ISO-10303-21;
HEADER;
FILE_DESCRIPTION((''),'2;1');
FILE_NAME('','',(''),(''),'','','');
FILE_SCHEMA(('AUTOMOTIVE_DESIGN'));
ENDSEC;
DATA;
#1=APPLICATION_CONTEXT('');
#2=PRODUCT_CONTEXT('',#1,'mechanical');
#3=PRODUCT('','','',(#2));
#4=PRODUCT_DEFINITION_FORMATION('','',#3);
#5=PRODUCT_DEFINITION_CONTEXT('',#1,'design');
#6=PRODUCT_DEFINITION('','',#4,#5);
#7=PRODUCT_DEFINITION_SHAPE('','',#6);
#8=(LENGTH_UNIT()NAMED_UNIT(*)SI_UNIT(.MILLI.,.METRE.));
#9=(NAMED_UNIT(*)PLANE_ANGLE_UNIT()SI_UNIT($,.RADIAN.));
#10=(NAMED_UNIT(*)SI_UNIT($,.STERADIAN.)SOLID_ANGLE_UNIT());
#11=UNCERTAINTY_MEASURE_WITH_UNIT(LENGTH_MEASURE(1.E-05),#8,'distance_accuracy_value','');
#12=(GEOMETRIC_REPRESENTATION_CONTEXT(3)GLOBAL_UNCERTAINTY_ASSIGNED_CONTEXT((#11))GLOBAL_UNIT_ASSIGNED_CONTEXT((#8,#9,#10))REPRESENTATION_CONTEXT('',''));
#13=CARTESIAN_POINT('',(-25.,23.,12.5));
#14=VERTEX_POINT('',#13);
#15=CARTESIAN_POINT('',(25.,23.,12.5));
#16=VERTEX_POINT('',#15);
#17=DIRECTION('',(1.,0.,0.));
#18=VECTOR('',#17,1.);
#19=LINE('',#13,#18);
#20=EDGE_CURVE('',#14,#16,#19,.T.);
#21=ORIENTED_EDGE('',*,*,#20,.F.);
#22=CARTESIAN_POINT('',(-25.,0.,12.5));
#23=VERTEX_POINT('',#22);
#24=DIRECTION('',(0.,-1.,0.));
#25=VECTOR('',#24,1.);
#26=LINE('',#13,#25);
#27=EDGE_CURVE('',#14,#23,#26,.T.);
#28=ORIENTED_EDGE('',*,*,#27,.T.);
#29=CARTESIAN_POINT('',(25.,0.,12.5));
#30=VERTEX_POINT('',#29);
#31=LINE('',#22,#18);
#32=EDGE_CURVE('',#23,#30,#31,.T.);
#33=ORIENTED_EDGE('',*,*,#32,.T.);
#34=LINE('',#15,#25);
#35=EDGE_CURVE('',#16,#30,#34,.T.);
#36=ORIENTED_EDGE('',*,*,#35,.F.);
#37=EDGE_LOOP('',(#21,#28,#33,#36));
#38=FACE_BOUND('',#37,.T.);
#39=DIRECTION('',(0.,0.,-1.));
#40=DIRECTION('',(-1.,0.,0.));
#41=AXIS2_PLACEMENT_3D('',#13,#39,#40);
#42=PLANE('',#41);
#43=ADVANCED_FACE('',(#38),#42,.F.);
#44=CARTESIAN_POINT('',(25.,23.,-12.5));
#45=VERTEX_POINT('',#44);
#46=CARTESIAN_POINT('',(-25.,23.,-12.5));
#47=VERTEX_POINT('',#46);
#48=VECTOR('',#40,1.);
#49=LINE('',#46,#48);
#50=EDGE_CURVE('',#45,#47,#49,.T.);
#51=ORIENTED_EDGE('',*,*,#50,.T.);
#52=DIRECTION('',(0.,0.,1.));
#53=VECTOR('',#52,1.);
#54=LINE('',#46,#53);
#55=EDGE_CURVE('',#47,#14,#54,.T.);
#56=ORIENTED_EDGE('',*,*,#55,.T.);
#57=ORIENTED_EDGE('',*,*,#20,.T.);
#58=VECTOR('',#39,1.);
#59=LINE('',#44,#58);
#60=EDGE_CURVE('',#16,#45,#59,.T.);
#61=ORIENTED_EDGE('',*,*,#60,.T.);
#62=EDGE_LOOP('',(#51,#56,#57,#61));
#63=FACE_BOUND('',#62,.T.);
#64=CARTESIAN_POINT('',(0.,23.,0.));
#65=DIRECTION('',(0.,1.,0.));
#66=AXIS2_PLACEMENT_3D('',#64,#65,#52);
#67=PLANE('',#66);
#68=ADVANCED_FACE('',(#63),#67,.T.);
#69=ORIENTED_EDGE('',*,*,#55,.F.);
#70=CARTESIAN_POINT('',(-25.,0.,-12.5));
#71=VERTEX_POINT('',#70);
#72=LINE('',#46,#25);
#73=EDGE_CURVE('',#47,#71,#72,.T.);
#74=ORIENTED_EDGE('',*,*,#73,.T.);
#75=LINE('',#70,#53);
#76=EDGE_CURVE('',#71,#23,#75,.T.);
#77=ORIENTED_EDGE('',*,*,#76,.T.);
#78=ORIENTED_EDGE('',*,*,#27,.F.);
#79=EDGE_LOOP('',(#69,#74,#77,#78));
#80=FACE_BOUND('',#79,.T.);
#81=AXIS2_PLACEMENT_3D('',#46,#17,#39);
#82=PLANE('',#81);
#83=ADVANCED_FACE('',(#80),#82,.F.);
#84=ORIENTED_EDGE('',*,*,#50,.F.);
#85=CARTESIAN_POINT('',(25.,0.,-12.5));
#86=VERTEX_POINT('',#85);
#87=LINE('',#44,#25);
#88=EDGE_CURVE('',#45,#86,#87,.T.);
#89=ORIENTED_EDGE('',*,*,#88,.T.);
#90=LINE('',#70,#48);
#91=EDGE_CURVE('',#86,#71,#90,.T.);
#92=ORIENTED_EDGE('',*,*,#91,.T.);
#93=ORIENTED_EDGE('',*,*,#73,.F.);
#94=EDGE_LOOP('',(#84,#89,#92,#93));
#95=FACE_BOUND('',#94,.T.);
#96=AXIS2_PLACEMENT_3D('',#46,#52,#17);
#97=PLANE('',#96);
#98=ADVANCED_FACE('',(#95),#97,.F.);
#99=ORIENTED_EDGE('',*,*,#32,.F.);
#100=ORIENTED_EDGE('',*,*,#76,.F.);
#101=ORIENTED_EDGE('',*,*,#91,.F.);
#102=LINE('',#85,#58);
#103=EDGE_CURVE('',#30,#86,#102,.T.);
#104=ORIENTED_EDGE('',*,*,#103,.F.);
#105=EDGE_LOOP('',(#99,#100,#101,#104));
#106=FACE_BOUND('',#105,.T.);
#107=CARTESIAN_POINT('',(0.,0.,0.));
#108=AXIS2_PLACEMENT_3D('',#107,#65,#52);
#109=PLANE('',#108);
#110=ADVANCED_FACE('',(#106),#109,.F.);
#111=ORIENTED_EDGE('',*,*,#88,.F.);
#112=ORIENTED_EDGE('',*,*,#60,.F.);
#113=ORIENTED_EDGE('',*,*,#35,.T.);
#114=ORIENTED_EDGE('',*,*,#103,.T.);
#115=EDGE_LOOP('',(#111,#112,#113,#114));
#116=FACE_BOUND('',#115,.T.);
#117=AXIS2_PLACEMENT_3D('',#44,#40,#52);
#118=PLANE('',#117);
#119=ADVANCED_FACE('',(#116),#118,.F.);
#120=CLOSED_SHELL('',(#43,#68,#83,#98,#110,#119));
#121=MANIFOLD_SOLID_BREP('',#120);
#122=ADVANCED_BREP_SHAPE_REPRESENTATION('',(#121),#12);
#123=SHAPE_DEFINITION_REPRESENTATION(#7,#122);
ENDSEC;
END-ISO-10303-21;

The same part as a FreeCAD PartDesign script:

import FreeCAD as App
import Part
import Sketcher
Q = App.Units.Quantity


def add_polygon(sketch, points):
    """Adds a closed chain of lines whose ends are joined by coincident constraints."""
    first, n = sketch.GeometryCount, len(points)
    for a, b in zip(points, points[1:] + points[:1]):
        sketch.addGeometry(Part.LineSegment(App.Vector(*a, 0), App.Vector(*b, 0)), False)
    for i in range(n):
        sketch.addConstraint(Sketcher.Constraint("Coincident", first + i, 2, first + (i + 1) % n, 1))

doc = App.newDocument("Part")
params = doc.addObject("Spreadsheet::Sheet", "Params")
for row, (alias, value) in enumerate([
    ("sketch1_width", "50 mm"),
    ("sketch1_height", "25 mm"),
    ("pad1_length", "23 mm"),
], start=1):
    params.set(f"A{row}", alias)
    params.set(f"B{row}", "=" + value)
    params.setAlias(f"B{row}", alias)

body = doc.addObject("PartDesign::Body", "Body")

# Sketch on XZ plane
sketch1 = body.newObject("Sketcher::SketchObject", "Sketch")
sketch1.AttachmentSupport = (doc.getObject("XZ_Plane"), [""])
sketch1.MapMode = "FlatFace"
add_polygon(sketch1, [(-25, -12), (-25, 12), (25, 12), (25, -12)])  # lines 0-3
sketch1.addConstraint([
    Sketcher.Constraint("Vertical", 0),
    Sketcher.Constraint("Horizontal", 1),
    Sketcher.Constraint("Vertical", 2),
    Sketcher.Constraint("Horizontal", 3),
    Sketcher.Constraint("Symmetric", 0, 2, 2, 2, -1, 1),
    Sketcher.Constraint("DistanceX", 1, 1, 1, 2, Q("50 mm")),
    Sketcher.Constraint("DistanceY", 0, 1, 0, 2, Q("25 mm")),
])
sketch1.setExpression("Constraints[9]", "Params.sketch1_width")
sketch1.setExpression("Constraints[10]", "Params.sketch1_height")
pad1 = body.newObject("PartDesign::Pad", "Pad")
pad1.Profile = sketch1
pad1.setExpression("Length", "Params.pad1_length")
pad1.Reversed = True

doc.recompute()
